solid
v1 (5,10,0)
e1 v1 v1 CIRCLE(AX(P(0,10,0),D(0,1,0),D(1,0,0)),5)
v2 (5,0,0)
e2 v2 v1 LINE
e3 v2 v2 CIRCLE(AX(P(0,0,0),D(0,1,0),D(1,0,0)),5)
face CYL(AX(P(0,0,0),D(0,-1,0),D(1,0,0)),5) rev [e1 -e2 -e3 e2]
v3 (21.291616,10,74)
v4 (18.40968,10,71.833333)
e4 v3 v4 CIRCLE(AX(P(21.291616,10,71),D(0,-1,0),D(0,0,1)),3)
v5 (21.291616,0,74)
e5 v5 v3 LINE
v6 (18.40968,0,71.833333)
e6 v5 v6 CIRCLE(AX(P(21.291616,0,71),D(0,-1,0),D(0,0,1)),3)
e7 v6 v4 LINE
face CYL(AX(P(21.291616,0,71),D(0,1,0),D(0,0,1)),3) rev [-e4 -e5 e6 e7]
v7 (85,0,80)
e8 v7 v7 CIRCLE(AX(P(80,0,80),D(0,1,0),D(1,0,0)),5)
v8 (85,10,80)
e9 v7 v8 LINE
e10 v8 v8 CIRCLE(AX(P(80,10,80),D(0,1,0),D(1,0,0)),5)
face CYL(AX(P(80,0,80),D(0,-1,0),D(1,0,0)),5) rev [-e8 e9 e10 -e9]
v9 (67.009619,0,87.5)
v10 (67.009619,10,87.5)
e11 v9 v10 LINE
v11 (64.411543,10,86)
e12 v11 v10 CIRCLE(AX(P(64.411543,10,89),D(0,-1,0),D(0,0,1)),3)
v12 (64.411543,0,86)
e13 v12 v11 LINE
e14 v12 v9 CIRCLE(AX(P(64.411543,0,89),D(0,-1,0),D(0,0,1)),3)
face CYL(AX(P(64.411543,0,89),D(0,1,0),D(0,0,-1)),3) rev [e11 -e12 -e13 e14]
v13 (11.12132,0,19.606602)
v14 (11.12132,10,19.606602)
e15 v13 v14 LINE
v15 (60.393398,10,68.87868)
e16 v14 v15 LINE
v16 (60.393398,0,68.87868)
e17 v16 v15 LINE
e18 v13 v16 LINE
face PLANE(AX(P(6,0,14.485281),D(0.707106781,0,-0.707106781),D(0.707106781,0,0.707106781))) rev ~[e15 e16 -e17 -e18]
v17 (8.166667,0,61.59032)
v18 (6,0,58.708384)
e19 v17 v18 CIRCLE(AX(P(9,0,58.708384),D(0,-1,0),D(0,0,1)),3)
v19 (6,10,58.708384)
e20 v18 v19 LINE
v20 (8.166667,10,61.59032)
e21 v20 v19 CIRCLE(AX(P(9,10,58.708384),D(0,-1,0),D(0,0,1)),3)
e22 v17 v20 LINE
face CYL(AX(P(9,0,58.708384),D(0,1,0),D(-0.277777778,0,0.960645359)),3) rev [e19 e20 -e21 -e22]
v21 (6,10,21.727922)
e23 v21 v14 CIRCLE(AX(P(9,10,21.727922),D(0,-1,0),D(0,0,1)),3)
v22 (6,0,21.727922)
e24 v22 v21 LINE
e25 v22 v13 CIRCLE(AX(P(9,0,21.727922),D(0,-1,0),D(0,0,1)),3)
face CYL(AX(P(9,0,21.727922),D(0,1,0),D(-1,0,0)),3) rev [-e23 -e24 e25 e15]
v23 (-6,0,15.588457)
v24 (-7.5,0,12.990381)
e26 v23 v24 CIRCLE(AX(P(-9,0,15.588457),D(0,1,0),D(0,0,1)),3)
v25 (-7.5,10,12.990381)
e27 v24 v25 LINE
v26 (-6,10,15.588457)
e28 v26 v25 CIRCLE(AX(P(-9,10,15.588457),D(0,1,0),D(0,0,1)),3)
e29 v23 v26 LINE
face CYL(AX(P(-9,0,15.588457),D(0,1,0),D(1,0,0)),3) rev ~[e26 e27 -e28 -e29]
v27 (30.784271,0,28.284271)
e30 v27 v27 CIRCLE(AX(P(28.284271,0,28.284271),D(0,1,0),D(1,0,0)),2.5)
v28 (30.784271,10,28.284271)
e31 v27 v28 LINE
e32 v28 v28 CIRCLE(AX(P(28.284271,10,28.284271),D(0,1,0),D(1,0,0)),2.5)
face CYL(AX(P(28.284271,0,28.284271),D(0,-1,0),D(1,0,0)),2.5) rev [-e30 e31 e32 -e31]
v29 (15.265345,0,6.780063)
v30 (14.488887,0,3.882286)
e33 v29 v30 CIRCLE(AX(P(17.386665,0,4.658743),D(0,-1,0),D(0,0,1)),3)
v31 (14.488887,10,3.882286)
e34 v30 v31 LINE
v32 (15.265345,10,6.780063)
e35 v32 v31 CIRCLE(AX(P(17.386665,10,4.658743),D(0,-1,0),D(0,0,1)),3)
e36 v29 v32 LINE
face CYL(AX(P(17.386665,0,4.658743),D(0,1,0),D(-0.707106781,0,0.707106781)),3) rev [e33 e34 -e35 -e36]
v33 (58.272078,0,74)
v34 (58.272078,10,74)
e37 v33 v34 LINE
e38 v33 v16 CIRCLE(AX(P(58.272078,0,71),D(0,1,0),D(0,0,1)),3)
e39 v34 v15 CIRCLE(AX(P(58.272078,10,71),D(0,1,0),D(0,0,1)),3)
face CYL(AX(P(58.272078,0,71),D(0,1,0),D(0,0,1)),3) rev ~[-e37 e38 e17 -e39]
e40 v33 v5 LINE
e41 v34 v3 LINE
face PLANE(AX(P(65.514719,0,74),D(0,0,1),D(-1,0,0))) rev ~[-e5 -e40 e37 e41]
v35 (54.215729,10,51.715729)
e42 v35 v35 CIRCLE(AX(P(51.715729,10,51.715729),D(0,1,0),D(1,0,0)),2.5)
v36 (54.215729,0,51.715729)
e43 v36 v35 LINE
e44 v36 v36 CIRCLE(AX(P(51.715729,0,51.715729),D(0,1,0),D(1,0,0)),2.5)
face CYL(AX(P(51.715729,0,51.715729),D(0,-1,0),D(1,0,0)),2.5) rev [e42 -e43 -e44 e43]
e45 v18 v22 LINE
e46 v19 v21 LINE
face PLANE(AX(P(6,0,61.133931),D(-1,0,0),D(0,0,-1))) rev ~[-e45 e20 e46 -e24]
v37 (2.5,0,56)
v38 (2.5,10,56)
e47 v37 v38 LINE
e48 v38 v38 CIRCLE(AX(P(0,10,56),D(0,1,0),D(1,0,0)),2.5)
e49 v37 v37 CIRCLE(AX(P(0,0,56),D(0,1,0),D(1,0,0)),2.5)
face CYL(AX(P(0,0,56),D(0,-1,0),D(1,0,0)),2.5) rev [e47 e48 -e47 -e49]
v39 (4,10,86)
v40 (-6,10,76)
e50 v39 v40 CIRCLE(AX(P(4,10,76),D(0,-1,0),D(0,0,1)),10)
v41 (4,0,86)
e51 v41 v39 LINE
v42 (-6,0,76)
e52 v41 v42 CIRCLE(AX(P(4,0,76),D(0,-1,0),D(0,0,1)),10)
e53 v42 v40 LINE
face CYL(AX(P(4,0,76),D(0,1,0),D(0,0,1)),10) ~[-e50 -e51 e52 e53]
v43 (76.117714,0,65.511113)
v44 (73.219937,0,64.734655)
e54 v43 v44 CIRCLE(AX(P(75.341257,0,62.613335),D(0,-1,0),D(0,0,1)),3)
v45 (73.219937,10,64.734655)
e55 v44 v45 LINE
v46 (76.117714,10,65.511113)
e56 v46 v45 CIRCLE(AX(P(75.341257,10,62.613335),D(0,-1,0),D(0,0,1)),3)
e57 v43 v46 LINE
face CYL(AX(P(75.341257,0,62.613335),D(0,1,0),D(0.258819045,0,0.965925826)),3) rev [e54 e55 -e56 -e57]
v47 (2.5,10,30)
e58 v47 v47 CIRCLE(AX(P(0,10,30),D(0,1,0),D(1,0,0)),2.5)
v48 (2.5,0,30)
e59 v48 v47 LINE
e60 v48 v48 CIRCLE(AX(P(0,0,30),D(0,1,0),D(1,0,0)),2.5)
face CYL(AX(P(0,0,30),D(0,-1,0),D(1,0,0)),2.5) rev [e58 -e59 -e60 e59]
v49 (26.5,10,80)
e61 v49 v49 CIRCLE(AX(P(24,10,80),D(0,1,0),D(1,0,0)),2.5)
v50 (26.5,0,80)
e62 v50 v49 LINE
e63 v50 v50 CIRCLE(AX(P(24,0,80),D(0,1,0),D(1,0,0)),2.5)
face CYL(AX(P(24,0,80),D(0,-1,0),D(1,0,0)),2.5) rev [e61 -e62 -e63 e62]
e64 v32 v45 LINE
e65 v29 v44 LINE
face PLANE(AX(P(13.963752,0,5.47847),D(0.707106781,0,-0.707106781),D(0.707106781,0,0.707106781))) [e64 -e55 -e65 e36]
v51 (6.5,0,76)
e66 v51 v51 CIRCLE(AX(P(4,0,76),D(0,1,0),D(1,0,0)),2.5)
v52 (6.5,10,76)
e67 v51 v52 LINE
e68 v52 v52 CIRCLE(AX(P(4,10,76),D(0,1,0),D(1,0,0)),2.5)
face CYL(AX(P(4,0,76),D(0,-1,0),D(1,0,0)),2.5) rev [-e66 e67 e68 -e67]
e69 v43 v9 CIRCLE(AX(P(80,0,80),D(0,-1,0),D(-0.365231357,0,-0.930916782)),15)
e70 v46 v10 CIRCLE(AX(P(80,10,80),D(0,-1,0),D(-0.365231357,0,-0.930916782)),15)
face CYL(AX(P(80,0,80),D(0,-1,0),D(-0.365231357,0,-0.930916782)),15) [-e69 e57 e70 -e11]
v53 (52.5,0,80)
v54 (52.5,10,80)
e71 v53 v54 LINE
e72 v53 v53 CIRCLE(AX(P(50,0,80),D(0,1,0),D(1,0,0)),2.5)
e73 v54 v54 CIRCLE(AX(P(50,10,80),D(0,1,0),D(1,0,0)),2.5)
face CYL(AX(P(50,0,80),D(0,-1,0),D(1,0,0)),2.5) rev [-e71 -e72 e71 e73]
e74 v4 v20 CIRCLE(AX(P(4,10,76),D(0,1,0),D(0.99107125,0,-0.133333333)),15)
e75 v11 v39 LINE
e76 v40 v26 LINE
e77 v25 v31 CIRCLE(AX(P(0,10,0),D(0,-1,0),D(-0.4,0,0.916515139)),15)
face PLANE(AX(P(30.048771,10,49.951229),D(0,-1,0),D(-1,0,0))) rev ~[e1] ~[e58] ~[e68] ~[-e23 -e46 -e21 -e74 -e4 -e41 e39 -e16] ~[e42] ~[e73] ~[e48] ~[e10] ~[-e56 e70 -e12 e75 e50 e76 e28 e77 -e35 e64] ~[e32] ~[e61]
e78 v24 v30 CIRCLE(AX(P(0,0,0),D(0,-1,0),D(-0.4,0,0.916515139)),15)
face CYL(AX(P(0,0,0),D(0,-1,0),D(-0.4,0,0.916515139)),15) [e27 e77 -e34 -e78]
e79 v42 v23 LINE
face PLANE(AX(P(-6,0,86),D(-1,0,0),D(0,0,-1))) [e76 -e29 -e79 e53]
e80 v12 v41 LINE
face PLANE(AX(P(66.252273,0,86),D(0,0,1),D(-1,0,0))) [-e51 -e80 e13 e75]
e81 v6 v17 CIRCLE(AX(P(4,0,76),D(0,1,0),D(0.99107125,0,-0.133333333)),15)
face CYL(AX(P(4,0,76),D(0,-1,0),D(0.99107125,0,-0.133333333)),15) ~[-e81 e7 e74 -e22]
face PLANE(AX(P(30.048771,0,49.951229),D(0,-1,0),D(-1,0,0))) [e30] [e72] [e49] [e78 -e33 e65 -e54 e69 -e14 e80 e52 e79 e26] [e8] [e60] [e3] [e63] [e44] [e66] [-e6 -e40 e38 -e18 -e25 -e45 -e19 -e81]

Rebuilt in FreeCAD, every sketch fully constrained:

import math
import FreeCAD as App
import Part
import Sketcher

V = App.Vector
Q = App.Units.Quantity


def edges_at(feature, points):
    """Names of the edges that pass closest to the given points."""
    edges = feature.Shape.Edges
    near = lambda p: min(range(len(edges)), key=lambda i: edges[i].distToShape(Part.Vertex(*p))[0])
    return sorted({f"Edge{near(p) + 1}" for p in points})

doc = App.newDocument("Part")
body = doc.addObject("PartDesign::Body", "Body")

# Sketch on XZ plane
sketch1 = body.newObject("Sketcher::SketchObject", "Sketch")
sketch1.AttachmentSupport = (doc.getObject("XZ_Plane"), [""])
sketch1.MapMode = "FlatFace"
sketch1.addGeometry([
    Part.LineSegment(V(-6, 86, 0), V(66.3, 86, 0)),  # 0
    Part.ArcOfCircle(Part.Circle(V(80, 80, 0), V(0, 0, 1), 15), math.radians(-111), math.radians(156)),  # 1
    Part.LineSegment(V(74.5, 66, 0), V(14, 5.5, 0)),  # 2
    Part.ArcOfCircle(Part.Circle(V(0, 0, 0), V(0, 0, 1), 15), math.radians(114), math.radians(381)),  # 3
    Part.LineSegment(V(-6, 13.7, 0), V(-6, 86, 0)),  # 4
    Part.Circle(V(80, 80, 0), V(0, 0, 1), 5),  # 5
    Part.Circle(V(50, 80, 0), V(0, 0, 1), 2.5),  # 6
    Part.Circle(V(51.7, 51.7, 0), V(0, 0, 1), 2.5),  # 7
    Part.Circle(V(24, 80, 0), V(0, 0, 1), 2.5),  # 8
    Part.Circle(V(4, 76, 0), V(0, 0, 1), 2.5),  # 9
    Part.LineSegment(V(65.5, 74, 0), V(18.9, 74, 0)),  # 10
    Part.ArcOfCircle(Part.Circle(V(4, 76, 0), V(0, 0, 1), 15), math.radians(-82), math.radians(-8)),  # 11
    Part.LineSegment(V(6, 61.1, 0), V(6, 14.5, 0)),  # 12
    Part.LineSegment(V(6, 14.5, 0), V(65.5, 74, 0)),  # 13
    Part.Circle(V(0, 56, 0), V(0, 0, 1), 2.5),  # 14
    Part.Circle(V(28.3, 28.3, 0), V(0, 0, 1), 2.5),  # 15
    Part.Circle(V(0, 30, 0), V(0, 0, 1), 2.5),  # 16
    Part.Circle(V(0, 0, 0), V(0, 0, 1), 5),  # 17
], False)
sketch1.addConstraint([
    Sketcher.Constraint("Coincident", 0, 2, 1, 2),
    Sketcher.Constraint("Coincident", 1, 1, 2, 1),
    Sketcher.Constraint("Coincident", 2, 2, 3, 2),
    Sketcher.Constraint("Coincident", 3, 1, 4, 1),
    Sketcher.Constraint("Coincident", 4, 2, 0, 1),
    Sketcher.Constraint("Coincident", 10, 2, 11, 2),
    Sketcher.Constraint("Coincident", 11, 1, 12, 1),
    Sketcher.Constraint("Coincident", 12, 2, 13, 1),
    Sketcher.Constraint("Coincident", 13, 2, 10, 1),
    Sketcher.Constraint("Horizontal", 0),
    Sketcher.Constraint("Vertical", 4),
    Sketcher.Constraint("Horizontal", 10),
    Sketcher.Constraint("Vertical", 12),
    Sketcher.Constraint("Coincident", 3, 3, -1, 1),
    Sketcher.Constraint("Coincident", 17, 3, -1, 1),
    Sketcher.Constraint("Coincident", 5, 3, 1, 3),
    Sketcher.Constraint("Coincident", 11, 3, 9, 3),
    Sketcher.Constraint("Equal", 1, 3),
    Sketcher.Constraint("Equal", 6, 7),
    Sketcher.Constraint("Equal", 7, 8),
    Sketcher.Constraint("Equal", 8, 9),
    Sketcher.Constraint("Equal", 3, 11),
    Sketcher.Constraint("Equal", 9, 14),
    Sketcher.Constraint("Equal", 14, 15),
    Sketcher.Constraint("Equal", 15, 16),
    Sketcher.Constraint("Equal", 5, 17),
    Sketcher.Constraint("PointOnObject", 14, 3, -2),
    Sketcher.Constraint("PointOnObject", 16, 3, -2),
    Sketcher.Constraint("Parallel", 2, 13),
    Sketcher.Constraint("Horizontal", 5, 3, 6, 3),
    Sketcher.Constraint("Horizontal", 6, 3, 8, 3),
    Sketcher.Constraint("Equal", 0, 4),
    Sketcher.Constraint("Equal", 10, 12),
    Sketcher.Constraint("Diameter", 5, Q("10 mm")),
    Sketcher.Constraint("Diameter", 6, Q("5 mm")),
    Sketcher.Constraint("Radius", 1, Q("15 mm")),
    Sketcher.Constraint("Angle", 2, Q("-135 deg")),
    Sketcher.Constraint("DistanceX", -1, 1, 1, 3, Q("80 mm")),
    Sketcher.Constraint("DistanceY", -1, 1, 1, 3, Q("80 mm")),
    Sketcher.Constraint("DistanceX", -1, 1, 6, 3, Q("50 mm")),
    Sketcher.Constraint("DistanceX", -1, 1, 8, 3, Q("24 mm")),
    Sketcher.Constraint("DistanceX", -1, 1, 9, 3, Q("4 mm")),
    Sketcher.Constraint("DistanceY", -1, 1, 9, 3, Q("76 mm")),
    Sketcher.Constraint("DistanceY", -1, 1, 14, 3, Q("56 mm")),
    Sketcher.Constraint("DistanceY", -1, 1, 16, 3, Q("30 mm")),
    Sketcher.Constraint("DistanceY", -1, 1, 0, 2, Q("86 mm")),
    Sketcher.Constraint("DistanceY", -1, 1, 10, 2, Q("74 mm")),
    Sketcher.Constraint("DistanceX", 10, 2, 10, 1, Q("46.64865 mm")),
    Sketcher.Constraint("DistanceX", 7, 3, 1, 1, Q("22.805801 mm")),
    Sketcher.Constraint("DistanceY", 2, 2, 15, 3, Q("22.805801 mm")),
    Sketcher.Constraint("Distance", 2, Q("85.641631 mm")),
    Sketcher.Constraint("DistanceY", -1, 1, 7, 3, Q("51.715729 mm")),
    Sketcher.Constraint("DistanceX", -1, 1, 15, 3, Q("28.284271 mm")),
])
pad1 = body.newObject("PartDesign::Pad", "Pad")
pad1.Profile = sketch1
pad1.Length = 10
pad1.Reversed = True
doc.recompute()

fillet = body.newObject("PartDesign::Fillet", "Fillet")
fillet.Base = (pad1, edges_at(pad1, [(-6, 5, 86)]))
fillet.Radius = 10
doc.recompute()

fillet2 = body.newObject("PartDesign::Fillet", "Fillet001")
fillet2.Base = (fillet, edges_at(fillet, [
    (-6, 5, 13.748),
    (13.964, 5, 5.478),
    (74.522, 5, 66.036),
    (66.252, 5, 86),
]))
fillet2.Radius = 3
doc.recompute()

fillet3 = body.newObject("PartDesign::Fillet", "Fillet002")
fillet3.Base = (fillet2, edges_at(fillet2, [(65.515, 5, 74), (6, 5, 14.485)]))
fillet3.Radius = 3
doc.recompute()

fillet4 = body.newObject("PartDesign::Fillet", "Fillet003")
fillet4.Base = (fillet3, edges_at(fillet3, [(6, 5, 61.134), (18.866, 5, 74)]))
fillet4.Radius = 3

doc.recompute()
